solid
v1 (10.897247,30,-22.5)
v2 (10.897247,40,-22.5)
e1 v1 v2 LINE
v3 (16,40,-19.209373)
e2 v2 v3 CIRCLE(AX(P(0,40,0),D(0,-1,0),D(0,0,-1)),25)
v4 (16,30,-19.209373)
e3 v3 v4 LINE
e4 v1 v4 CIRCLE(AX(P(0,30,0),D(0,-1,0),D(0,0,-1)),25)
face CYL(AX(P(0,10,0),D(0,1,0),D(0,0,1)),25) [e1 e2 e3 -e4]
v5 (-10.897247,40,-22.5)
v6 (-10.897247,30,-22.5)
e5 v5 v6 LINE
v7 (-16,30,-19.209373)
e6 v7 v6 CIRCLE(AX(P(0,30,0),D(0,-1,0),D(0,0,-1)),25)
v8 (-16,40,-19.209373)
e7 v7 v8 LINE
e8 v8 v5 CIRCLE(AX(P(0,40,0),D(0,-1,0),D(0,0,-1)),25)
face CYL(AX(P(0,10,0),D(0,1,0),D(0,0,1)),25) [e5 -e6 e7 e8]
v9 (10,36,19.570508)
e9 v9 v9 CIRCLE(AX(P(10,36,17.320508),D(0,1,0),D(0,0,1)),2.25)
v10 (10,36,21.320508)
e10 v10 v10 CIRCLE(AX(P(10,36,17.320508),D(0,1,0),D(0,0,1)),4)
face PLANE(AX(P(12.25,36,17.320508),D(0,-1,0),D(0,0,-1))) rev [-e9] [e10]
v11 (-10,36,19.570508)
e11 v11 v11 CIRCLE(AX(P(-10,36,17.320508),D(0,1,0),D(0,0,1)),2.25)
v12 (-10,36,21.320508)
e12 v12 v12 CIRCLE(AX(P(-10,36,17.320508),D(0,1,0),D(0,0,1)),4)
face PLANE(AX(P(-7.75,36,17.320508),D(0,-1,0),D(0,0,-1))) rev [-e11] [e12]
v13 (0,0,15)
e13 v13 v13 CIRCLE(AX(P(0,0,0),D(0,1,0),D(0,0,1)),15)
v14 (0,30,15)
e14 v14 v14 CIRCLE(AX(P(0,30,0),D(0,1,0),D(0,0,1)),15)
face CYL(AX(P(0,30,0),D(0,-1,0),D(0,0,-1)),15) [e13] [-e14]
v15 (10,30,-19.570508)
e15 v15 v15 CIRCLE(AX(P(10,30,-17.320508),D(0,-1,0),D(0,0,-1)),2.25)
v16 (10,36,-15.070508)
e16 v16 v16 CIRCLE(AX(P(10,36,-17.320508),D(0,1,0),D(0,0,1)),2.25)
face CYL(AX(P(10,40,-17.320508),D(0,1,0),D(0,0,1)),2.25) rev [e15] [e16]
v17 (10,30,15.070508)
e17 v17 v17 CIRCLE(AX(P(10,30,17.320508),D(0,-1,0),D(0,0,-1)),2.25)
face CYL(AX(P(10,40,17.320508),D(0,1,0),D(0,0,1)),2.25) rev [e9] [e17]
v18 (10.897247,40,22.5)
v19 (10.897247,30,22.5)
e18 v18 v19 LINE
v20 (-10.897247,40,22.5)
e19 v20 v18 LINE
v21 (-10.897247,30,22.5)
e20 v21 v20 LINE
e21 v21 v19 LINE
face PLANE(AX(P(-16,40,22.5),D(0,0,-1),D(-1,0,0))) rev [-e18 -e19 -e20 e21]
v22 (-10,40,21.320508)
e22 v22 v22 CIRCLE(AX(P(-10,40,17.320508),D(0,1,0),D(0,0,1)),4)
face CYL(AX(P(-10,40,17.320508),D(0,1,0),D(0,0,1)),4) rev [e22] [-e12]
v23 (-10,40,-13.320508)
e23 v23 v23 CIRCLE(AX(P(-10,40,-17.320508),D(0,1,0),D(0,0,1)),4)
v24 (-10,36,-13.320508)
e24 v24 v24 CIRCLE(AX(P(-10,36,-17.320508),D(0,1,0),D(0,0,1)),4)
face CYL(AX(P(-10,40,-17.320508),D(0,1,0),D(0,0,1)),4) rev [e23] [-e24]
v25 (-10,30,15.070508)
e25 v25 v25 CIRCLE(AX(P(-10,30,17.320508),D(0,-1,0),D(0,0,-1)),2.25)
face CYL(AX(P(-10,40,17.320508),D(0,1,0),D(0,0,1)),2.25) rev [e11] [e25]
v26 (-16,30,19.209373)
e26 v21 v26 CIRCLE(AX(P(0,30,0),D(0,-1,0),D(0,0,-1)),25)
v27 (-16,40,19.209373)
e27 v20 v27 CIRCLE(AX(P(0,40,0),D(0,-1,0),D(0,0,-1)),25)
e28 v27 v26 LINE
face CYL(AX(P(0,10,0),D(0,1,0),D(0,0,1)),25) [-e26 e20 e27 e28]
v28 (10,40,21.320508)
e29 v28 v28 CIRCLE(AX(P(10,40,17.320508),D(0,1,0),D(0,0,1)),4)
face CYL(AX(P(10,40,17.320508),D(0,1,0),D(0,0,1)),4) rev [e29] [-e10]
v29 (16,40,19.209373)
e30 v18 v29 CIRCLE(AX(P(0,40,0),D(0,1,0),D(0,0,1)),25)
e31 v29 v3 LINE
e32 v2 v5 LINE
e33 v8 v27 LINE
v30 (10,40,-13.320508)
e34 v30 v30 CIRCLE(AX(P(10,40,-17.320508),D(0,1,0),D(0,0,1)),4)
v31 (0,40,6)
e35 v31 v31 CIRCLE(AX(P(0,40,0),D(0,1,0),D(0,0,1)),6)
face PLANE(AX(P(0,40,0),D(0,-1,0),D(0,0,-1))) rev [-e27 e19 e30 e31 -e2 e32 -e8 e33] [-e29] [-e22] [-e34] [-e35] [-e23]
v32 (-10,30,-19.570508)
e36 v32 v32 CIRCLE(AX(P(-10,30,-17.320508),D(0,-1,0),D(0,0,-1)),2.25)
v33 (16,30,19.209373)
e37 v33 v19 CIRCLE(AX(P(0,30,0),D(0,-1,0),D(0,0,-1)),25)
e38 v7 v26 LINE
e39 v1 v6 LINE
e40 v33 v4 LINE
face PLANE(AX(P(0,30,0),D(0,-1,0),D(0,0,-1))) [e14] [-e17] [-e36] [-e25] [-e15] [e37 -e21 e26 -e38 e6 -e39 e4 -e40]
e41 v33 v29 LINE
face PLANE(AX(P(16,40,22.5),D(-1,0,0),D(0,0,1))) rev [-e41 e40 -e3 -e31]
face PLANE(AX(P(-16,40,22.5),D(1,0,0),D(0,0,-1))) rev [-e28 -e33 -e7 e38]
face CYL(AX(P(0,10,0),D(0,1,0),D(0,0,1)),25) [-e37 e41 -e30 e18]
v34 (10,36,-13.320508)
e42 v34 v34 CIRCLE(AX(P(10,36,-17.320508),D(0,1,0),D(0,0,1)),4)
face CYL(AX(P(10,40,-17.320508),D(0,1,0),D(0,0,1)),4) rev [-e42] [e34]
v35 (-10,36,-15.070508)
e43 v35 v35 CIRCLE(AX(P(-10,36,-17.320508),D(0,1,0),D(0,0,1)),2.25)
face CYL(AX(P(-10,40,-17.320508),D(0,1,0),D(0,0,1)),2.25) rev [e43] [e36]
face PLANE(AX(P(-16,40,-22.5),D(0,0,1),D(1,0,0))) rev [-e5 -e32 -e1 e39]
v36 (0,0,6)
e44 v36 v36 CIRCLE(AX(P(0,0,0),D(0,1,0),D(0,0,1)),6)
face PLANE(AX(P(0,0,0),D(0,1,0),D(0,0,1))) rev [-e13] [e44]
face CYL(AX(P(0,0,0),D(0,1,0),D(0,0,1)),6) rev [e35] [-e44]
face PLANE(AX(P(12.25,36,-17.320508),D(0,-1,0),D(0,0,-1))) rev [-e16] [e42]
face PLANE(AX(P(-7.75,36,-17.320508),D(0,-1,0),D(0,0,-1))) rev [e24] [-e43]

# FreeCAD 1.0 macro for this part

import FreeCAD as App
import Part
import Sketcher
from FreeCAD import Vector
Q = App.Units.Quantity

doc = App.newDocument("Part")
body = doc.addObject("PartDesign::Body", "Body")

# Sketch on XZ plane
sketch1 = doc.addObject("Sketcher::SketchObject", "Sketch")
body.addObject(sketch1)
sketch1.AttachmentSupport = (doc.XZ_Plane, [""])
sketch1.MapMode = "FlatFace"
sketch1.addGeometry(Part.Circle(Vector(0, 0, 0), Vector(0, 0, 1), 15), False)
sketch1.addConstraint([
    Sketcher.Constraint("Coincident", 0, 3, -1, 1),
    Sketcher.Constraint("Diameter", 0, Q("30 mm")),
])
pad1 = doc.addObject("PartDesign::Pad", "Pad")
body.addObject(pad1)
pad1.Profile = sketch1
pad1.Length = 30
pad1.Reversed = True

# Sketch on XZ plane
sketch2 = doc.addObject("Sketcher::SketchObject", "Sketch001")
body.addObject(sketch2)
sketch2.AttachmentSupport = (doc.XZ_Plane, [""])
sketch2.MapMode = "FlatFace"
sketch2.AttachmentOffset = App.Placement(Vector(0, 0, -30), App.Rotation())
sketch2.addGeometry([
    Part.LineSegment(Vector(-16, -22.5, 0), Vector(-16, 22.5, 0)),
    Part.LineSegment(Vector(-16, 22.5, 0), Vector(16, 22.5, 0)),
    Part.LineSegment(Vector(16, 22.5, 0), Vector(16, -22.5, 0)),
    Part.LineSegment(Vector(16, -22.5, 0), Vector(-16, -22.5, 0)),
], False)
sketch2.addConstraint([
    Sketcher.Constraint("Coincident", 0, 2, 1, 1),
    Sketcher.Constraint("Coincident", 1, 2, 2, 1),
    Sketcher.Constraint("Coincident", 2, 2, 3, 1),
    Sketcher.Constraint("Coincident", 3, 2, 0, 1),
    Sketcher.Constraint("Vertical", 0),
    Sketcher.Constraint("Horizontal", 1),
    Sketcher.Constraint("Vertical", 2),
    Sketcher.Constraint("Horizontal", 3),
    Sketcher.Constraint("Symmetric", 0, 2, 2, 2, -1, 1),
    Sketcher.Constraint("DistanceX", 1, 1, 1, 2, Q("32 mm")),
    Sketcher.Constraint("DistanceY", 0, 1, 0, 2, Q("45 mm")),
])
pad2 = doc.addObject("PartDesign::Pad", "Pad001")
body.addObject(pad2)
pad2.Profile = sketch2
pad2.Length = 10
pad2.Reversed = True

# Sketch on XZ plane
sketch3 = doc.addObject("Sketcher::SketchObject", "Sketch002")
body.addObject(sketch3)
sketch3.AttachmentSupport = (doc.XZ_Plane, [""])
sketch3.MapMode = "FlatFace"
sketch3.AttachmentOffset = App.Placement(Vector(0, 0, -40), App.Rotation())
sketch3.addGeometry([
    Part.Circle(Vector(-10, -17.320508, 0), Vector(0, 0, 1), 2.25),
    Part.Circle(Vector(10, -17.320508, 0), Vector(0, 0, 1), 2.25),
    Part.Circle(Vector(10, 17.320508, 0), Vector(0, 0, 1), 2.25),
    Part.Circle(Vector(-10, 17.320508, 0), Vector(0, 0, 1), 2.25),
], False)
sketch3.addConstraint([
    Sketcher.Constraint("Equal", 0, 1),
    Sketcher.Constraint("Equal", 1, 2),
    Sketcher.Constraint("Equal", 2, 3),
    Sketcher.Constraint("Symmetric", 0, 3, 2, 3, -1, 1),
    Sketcher.Constraint("Symmetric", 1, 3, 3, 3, -1, 1),
    Sketcher.Constraint("Symmetric", 0, 3, 1, 3, -2),
    Sketcher.Constraint("Diameter", 0, Q("4.5 mm")),
    Sketcher.Constraint("DistanceX", 0, 3, -1, 1, Q("10 mm")),
    Sketcher.Constraint("DistanceY", 0, 3, -1, 1, Q("17.320508 mm")),
])
doc.recompute()
hole = doc.addObject("PartDesign::Hole", "Hole")
body.addObject(hole)
hole.Profile = sketch3
hole.ThreadType = "None"
hole.Diameter = 4.5
hole.DepthType = "ThroughAll"
hole.HoleCutType = "Counterbore"
hole.HoleCutDiameter = 8
hole.HoleCutDepth = 4
hole.Reversed = True

# Sketch on XZ plane
sketch4 = doc.addObject("Sketcher::SketchObject", "Sketch003")
body.addObject(sketch4)
sketch4.AttachmentSupport = (doc.XZ_Plane, [""])
sketch4.MapMode = "FlatFace"
sketch4.AttachmentOffset = App.Placement(Vector(0, 0, -40), App.Rotation())
sketch4.addGeometry([
    Part.LineSegment(Vector(-39.495069, -31.418368, 0), Vector(-39.495069, 31.418368, 0)),  # 0
    Part.LineSegment(Vector(-39.495069, 31.418368, 0), Vector(39.495069, 31.418368, 0)),  # 1
    Part.LineSegment(Vector(39.495069, 31.418368, 0), Vector(39.495069, -31.418368, 0)),  # 2
    Part.LineSegment(Vector(39.495069, -31.418368, 0), Vector(-39.495069, -31.418368, 0)),  # 3
    Part.Circle(Vector(0, 0, 0), Vector(0, 0, 1), 25),  # 4
], False)
sketch4.addConstraint([
    Sketcher.Constraint("Coincident", 0, 2, 1, 1),
    Sketcher.Constraint("Coincident", 1, 2, 2, 1),
    Sketcher.Constraint("Coincident", 2, 2, 3, 1),
    Sketcher.Constraint("Coincident", 3, 2, 0, 1),
    Sketcher.Constraint("Vertical", 0),
    Sketcher.Constraint("Horizontal", 1),
    Sketcher.Constraint("Vertical", 2),
    Sketcher.Constraint("Horizontal", 3),
    Sketcher.Constraint("Coincident", 4, 3, -1, 1),
    Sketcher.Constraint("Symmetric", 0, 2, 2, 2, -1, 1),
    Sketcher.Constraint("Diameter", 4, Q("50 mm")),
    Sketcher.Constraint("DistanceX", 1, 1, 1, 2, Q("78.990138 mm")),
    Sketcher.Constraint("DistanceY", 0, 1, 0, 2, Q("62.836735 mm")),
])
pocket1 = doc.addObject("PartDesign::Pocket", "Pocket")
body.addObject(pocket1)
pocket1.Profile = sketch4
pocket1.Length = 30
pocket1.Reversed = True

# Sketch on XZ plane
sketch5 = doc.addObject("Sketcher::SketchObject", "Sketch004")
body.addObject(sketch5)
sketch5.AttachmentSupport = (doc.XZ_Plane, [""])
sketch5.MapMode = "FlatFace"
sketch5.AttachmentOffset = App.Placement(Vector(0, 0, -40), App.Rotation())
sketch5.addGeometry(Part.Circle(Vector(0, 0, 0), Vector(0, 0, 1), 6), False)
sketch5.addConstraint([
    Sketcher.Constraint("Coincident", 0, 3, -1, 1),
    Sketcher.Constraint("Diameter", 0, Q("12 mm")),
])
pocket2 = doc.addObject("PartDesign::Pocket", "Pocket001")
body.addObject(pocket2)
pocket2.Profile = sketch5
pocket2.Type = "ThroughAll"
pocket2.Reversed = True

doc.recompute()
